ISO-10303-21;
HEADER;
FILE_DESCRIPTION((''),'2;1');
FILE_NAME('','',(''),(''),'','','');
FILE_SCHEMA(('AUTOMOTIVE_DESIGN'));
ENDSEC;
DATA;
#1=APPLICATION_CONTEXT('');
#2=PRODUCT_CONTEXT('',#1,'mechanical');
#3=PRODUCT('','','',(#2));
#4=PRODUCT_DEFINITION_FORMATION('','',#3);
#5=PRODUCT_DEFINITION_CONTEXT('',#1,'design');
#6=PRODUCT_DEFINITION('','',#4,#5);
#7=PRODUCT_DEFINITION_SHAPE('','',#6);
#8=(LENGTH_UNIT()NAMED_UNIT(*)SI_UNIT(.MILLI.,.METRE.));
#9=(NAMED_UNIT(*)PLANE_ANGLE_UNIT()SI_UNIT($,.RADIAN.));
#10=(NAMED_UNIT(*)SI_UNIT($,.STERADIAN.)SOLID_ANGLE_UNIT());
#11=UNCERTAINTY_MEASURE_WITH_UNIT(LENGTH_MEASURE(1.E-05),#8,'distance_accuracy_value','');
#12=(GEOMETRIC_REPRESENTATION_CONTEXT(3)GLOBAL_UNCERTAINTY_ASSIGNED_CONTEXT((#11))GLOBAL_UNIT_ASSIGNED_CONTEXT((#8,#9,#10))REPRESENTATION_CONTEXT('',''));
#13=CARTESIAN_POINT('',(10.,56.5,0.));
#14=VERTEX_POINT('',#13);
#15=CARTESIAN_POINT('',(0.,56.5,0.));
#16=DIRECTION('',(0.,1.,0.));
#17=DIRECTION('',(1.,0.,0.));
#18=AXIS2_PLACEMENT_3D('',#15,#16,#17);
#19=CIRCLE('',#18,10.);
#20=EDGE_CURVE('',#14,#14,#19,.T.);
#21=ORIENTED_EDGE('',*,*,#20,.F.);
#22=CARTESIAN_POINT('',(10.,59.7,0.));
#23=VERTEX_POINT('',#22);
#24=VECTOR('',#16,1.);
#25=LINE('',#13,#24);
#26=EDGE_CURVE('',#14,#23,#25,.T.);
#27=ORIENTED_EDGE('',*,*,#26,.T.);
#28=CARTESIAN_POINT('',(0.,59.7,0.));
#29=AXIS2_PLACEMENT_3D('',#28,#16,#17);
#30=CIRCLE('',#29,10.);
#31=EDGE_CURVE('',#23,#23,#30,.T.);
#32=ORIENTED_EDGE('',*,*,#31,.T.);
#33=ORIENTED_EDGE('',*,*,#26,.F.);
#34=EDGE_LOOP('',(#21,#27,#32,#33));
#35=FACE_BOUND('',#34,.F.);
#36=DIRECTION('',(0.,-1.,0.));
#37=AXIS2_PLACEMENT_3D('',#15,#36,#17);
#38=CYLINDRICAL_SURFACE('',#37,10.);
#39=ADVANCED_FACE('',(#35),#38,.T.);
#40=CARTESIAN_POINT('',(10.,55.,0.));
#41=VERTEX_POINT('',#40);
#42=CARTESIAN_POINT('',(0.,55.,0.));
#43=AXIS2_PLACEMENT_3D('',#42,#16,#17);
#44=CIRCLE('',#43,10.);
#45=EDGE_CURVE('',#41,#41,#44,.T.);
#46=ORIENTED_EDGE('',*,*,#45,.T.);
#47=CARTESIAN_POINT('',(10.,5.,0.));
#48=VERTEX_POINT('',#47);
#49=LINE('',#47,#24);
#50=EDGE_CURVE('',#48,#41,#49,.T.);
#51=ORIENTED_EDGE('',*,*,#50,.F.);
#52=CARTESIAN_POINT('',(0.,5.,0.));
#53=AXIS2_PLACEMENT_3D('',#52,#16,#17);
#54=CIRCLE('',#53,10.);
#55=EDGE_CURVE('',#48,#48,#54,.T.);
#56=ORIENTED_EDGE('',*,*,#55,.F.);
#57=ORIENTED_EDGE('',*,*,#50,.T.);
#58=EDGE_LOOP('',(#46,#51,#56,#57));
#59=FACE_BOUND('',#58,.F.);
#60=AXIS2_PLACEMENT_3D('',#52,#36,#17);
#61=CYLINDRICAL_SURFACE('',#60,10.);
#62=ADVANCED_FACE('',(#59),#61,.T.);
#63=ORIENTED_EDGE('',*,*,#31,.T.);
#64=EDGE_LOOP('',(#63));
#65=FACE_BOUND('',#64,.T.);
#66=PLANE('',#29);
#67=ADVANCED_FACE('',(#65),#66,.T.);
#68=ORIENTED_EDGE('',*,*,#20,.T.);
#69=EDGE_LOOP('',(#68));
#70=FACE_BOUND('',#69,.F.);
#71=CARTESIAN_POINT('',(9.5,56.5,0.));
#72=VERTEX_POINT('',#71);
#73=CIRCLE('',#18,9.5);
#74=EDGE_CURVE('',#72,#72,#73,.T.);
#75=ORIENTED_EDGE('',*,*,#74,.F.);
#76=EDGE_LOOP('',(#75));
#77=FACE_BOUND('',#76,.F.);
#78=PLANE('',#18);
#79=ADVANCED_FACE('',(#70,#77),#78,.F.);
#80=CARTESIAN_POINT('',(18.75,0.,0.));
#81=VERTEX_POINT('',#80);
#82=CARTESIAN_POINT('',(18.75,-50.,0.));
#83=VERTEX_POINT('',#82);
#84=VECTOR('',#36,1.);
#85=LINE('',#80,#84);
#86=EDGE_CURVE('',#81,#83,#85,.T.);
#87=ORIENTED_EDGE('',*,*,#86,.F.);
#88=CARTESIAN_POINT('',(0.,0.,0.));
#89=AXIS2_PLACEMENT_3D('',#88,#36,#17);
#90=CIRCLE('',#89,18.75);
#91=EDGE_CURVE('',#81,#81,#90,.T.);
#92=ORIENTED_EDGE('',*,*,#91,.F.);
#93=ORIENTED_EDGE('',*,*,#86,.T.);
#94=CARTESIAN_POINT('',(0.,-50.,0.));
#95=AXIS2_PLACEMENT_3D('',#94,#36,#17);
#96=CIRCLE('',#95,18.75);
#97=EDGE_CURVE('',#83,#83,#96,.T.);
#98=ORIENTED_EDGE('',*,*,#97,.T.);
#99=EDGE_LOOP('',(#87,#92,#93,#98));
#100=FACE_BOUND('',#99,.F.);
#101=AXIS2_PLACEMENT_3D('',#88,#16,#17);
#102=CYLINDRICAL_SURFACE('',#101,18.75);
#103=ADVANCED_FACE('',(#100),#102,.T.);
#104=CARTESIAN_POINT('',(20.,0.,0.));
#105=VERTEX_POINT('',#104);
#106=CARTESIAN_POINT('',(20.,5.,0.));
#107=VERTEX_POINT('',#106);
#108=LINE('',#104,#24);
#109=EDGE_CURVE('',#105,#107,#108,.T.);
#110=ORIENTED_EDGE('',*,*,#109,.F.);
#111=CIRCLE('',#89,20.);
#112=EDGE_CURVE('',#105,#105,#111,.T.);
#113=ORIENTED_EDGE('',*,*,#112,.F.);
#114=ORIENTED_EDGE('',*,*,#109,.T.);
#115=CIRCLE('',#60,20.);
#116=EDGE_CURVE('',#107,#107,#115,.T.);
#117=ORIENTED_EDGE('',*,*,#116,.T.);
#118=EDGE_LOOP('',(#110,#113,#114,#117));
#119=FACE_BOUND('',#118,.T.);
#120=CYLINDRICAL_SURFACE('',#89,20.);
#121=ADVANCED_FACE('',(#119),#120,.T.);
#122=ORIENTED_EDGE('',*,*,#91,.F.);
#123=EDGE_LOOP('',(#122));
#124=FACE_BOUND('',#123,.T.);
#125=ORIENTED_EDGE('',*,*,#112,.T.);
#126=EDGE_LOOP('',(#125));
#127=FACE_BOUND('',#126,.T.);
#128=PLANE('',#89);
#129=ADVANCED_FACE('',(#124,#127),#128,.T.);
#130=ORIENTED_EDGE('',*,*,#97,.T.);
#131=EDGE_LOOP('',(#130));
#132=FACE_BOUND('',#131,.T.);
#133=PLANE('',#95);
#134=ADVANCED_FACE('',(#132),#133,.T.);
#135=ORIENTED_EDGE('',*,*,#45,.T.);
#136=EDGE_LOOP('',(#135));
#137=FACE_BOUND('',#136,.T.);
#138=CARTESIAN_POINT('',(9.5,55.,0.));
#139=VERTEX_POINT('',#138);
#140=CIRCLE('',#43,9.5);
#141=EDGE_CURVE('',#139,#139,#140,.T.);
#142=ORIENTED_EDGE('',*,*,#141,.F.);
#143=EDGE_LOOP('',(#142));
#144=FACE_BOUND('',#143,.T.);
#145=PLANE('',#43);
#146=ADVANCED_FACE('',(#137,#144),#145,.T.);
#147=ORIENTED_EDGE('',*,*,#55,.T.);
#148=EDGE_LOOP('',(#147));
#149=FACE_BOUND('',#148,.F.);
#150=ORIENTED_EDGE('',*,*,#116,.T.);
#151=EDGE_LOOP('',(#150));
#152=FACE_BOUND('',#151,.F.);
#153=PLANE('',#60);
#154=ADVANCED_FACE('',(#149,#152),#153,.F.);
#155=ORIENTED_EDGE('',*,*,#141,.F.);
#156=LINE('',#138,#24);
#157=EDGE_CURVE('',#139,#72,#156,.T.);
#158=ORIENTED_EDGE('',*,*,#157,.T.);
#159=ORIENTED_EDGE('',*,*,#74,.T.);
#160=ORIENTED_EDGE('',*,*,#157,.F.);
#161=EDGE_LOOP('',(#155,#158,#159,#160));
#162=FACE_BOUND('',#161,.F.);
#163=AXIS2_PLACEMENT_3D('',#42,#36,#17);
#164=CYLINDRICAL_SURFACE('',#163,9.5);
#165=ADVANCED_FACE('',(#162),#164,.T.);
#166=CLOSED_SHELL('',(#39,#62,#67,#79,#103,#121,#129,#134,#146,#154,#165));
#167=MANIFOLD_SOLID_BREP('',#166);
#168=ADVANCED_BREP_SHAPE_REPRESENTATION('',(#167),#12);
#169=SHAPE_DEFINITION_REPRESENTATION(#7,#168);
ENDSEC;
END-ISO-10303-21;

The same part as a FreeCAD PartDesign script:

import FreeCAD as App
import Part
import Sketcher

V = App.Vector

doc = App.newDocument("Part")
body = doc.addObject("PartDesign::Body", "Body")

# Sketch on XZ plane
sketch1 = body.newObject("Sketcher::SketchObject", "Sketch")
sketch1.AttachmentSupport = (doc.getObject("XZ_Plane"), [""])
sketch1.MapMode = "FlatFace"
sketch1.addGeometry(Part.Circle(V(0, 0, 0), V(0, 0, 1), 19), False)
sketch1.addConstraint(Sketcher.Constraint("Coincident", 0, 3, -1, 1))
sketch1.addConstraint(Sketcher.Constraint("Diameter", 0, 37.5))
pad1 = body.newObject("PartDesign::Pad", "Pad")
pad1.Profile = sketch1
pad1.Length = 50

# Sketch on XZ plane
sketch2 = body.newObject("Sketcher::SketchObject", "Sketch001")
sketch2.AttachmentSupport = (doc.getObject("XZ_Plane"), [""])
sketch2.MapMode = "FlatFace"
sketch2.addGeometry(Part.Circle(V(0, 0, 0), V(0, 0, 1), 20), False)
sketch2.addConstraint(Sketcher.Constraint("Coincident", 0, 3, -1, 1))
sketch2.addConstraint(Sketcher.Constraint("Diameter", 0, 40.0))
pad2 = body.newObject("PartDesign::Pad", "Pad001")
pad2.Profile = sketch2
pad2.Length = 5
pad2.Reversed = True

# Sketch on XZ plane
sketch3 = body.newObject("Sketcher::SketchObject", "Sketch002")
sketch3.AttachmentSupport = (doc.getObject("XZ_Plane"), [""])
sketch3.MapMode = "FlatFace"
sketch3.AttachmentOffset = App.Placement(V(0, 0, -5), App.Rotation())
sketch3.addGeometry(Part.Circle(V(0, 0, 0), V(0, 0, 1), 10), False)
sketch3.addConstraint(Sketcher.Constraint("Coincident", 0, 3, -1, 1))
sketch3.addConstraint(Sketcher.Constraint("Diameter", 0, 20.0))
pad3 = body.newObject("PartDesign::Pad", "Pad002")
pad3.Profile = sketch3
pad3.Length = 50
pad3.Reversed = True

# Sketch on XZ plane
sketch4 = body.newObject("Sketcher::SketchObject", "Sketch003")
sketch4.AttachmentSupport = (doc.getObject("XZ_Plane"), [""])
sketch4.MapMode = "FlatFace"
sketch4.AttachmentOffset = App.Placement(V(0, 0, -55), App.Rotation())
sketch4.addGeometry(Part.Circle(V(0, 0, 0), V(0, 0, 1), 10), False)
sketch4.addConstraint(Sketcher.Constraint("Coincident", 0, 3, -1, 1))
sketch4.addConstraint(Sketcher.Constraint("Diameter", 0, 19.0))
pad4 = body.newObject("PartDesign::Pad", "Pad003")
pad4.Profile = sketch4
pad4.Length = 1.5
pad4.Reversed = True

# Sketch on XZ plane
sketch5 = body.newObject("Sketcher::SketchObject", "Sketch004")
sketch5.AttachmentSupport = (doc.getObject("XZ_Plane"), [""])
sketch5.MapMode = "FlatFace"
sketch5.AttachmentOffset = App.Placement(V(0, 0, -56.5), App.Rotation())
sketch5.addGeometry(Part.Circle(V(0, 0, 0), V(0, 0, 1), 10), False)
sketch5.addConstraint(Sketcher.Constraint("Coincident", 0, 3, -1, 1))
sketch5.addConstraint(Sketcher.Constraint("Diameter", 0, 20.0))
pad5 = body.newObject("PartDesign::Pad", "Pad004")
pad5.Profile = sketch5
pad5.Length = 3.2
pad5.Reversed = True

doc.recompute()
